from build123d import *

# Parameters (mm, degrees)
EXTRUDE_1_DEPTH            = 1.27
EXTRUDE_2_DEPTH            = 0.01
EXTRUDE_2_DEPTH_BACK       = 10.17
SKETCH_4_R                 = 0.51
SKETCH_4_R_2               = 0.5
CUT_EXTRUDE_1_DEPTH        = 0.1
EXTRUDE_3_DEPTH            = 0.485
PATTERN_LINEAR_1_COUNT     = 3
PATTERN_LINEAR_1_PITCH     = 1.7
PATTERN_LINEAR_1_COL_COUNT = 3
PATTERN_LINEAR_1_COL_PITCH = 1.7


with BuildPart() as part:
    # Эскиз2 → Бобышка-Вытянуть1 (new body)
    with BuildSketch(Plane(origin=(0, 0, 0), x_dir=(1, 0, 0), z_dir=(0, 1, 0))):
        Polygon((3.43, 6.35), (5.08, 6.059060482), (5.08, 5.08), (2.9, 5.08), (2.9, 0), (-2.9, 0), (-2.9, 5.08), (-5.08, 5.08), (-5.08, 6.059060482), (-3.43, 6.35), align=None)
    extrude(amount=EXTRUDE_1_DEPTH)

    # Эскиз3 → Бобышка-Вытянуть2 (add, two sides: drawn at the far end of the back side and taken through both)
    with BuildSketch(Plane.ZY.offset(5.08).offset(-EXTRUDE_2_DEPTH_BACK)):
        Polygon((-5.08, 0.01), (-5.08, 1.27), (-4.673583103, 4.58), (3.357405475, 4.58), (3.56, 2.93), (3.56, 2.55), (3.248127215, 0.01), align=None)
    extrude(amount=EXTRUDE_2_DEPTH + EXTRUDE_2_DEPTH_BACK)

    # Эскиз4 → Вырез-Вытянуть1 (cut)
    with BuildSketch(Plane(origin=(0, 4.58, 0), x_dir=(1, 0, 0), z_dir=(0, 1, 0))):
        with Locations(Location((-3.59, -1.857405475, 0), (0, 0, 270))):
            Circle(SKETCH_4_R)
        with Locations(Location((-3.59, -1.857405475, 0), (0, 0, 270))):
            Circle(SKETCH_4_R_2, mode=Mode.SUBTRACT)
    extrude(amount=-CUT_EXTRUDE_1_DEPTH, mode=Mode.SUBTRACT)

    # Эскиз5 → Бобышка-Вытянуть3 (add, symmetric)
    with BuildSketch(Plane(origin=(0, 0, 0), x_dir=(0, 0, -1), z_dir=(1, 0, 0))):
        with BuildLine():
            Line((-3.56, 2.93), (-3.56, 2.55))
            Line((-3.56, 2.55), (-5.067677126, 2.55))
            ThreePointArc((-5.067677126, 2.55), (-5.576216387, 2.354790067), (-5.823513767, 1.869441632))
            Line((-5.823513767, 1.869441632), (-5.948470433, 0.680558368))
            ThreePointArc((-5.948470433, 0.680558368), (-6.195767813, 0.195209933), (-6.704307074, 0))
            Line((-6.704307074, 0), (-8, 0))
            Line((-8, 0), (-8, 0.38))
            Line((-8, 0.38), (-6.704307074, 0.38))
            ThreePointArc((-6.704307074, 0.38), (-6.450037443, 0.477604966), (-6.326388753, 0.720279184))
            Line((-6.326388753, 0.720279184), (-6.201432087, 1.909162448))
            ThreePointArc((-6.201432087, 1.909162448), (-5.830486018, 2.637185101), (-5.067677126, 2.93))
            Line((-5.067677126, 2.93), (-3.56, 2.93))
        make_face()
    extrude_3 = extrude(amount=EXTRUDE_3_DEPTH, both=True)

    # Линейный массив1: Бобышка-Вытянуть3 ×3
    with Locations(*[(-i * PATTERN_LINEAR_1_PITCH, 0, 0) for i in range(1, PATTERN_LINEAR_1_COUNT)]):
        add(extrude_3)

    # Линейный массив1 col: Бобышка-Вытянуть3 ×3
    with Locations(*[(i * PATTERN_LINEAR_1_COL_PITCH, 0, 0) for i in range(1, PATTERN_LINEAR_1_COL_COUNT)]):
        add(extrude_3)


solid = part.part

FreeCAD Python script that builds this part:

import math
import FreeCAD as App
import Part
import Sketcher
from FreeCAD import Vector
Q = App.Units.Quantity

doc = App.newDocument("Part")
body = doc.addObject("PartDesign::Body", "Body")

# Sketch on XZ plane
sketch1 = body.newObject("Sketcher::SketchObject", "Sketch")
sketch1.AttachmentSupport = (doc.getObject("XZ_Plane"), [""])
sketch1.MapMode = "FlatFace"
sketch1.addGeometry([
    Part.LineSegment(Vector(5.1, -6.1, 0), Vector(3.4, -6.3, 0)),  # 0
    Part.LineSegment(Vector(3.4, -6.3, 0), Vector(-3.4, -6.3, 0)),  # 1
    Part.LineSegment(Vector(-3.4, -6.3, 0), Vector(-5.1, -6.1, 0)),  # 2
    Part.LineSegment(Vector(-5.1, -6.1, 0), Vector(-5.1, -5.1, 0)),  # 3
    Part.LineSegment(Vector(-5.1, -5.1, 0), Vector(-2.9, -5.1, 0)),  # 4
    Part.LineSegment(Vector(-2.9, -5.1, 0), Vector(-2.9, 0, 0)),  # 5
    Part.LineSegment(Vector(-2.9, 0, 0), Vector(2.9, 0, 0)),  # 6
    Part.LineSegment(Vector(2.9, 0, 0), Vector(2.9, -5.1, 0)),  # 7
    Part.LineSegment(Vector(2.9, -5.1, 0), Vector(5.1, -5.1, 0)),  # 8
    Part.LineSegment(Vector(5.1, -5.1, 0), Vector(5.1, -6.1, 0)),  # 9
], False)
sketch1.addConstraint([
    Sketcher.Constraint("Coincident", 0, 2, 1, 1),
    Sketcher.Constraint("Coincident", 1, 2, 2, 1),
    Sketcher.Constraint("Coincident", 2, 2, 3, 1),
    Sketcher.Constraint("Coincident", 3, 2, 4, 1),
    Sketcher.Constraint("Coincident", 4, 2, 5, 1),
    Sketcher.Constraint("Coincident", 5, 2, 6, 1),
    Sketcher.Constraint("Coincident", 6, 2, 7, 1),
    Sketcher.Constraint("Coincident", 7, 2, 8, 1),
    Sketcher.Constraint("Coincident", 8, 2, 9, 1),
    Sketcher.Constraint("Coincident", 9, 2, 0, 1),
    Sketcher.Constraint("Horizontal", 1),
    Sketcher.Constraint("Vertical", 3),
    Sketcher.Constraint("Horizontal", 4),
    Sketcher.Constraint("Vertical", 5),
    Sketcher.Constraint("Horizontal", 6),
    Sketcher.Constraint("Vertical", 7),
    Sketcher.Constraint("Horizontal", 8),
    Sketcher.Constraint("Vertical", 9),
    Sketcher.Constraint("Symmetric", 5, 2, 6, 2, -1, 1),
    Sketcher.Constraint("Symmetric", 3, 2, 8, 2, -2),
    Sketcher.Constraint("Horizontal", 2, 2, 9, 2),
    Sketcher.Constraint("Equal", 0, 2),
    Sketcher.Constraint("Angle", 0, Q("-170 deg")),
    Sketcher.Constraint("DistanceX", 6, 1, 6, 2, Q("5.8 mm")),
    Sketcher.Constraint("DistanceX", 1, 2, 1, 1, Q("6.86 mm")),
    Sketcher.Constraint("DistanceX", 4, 1, 4, 2, Q("2.18 mm")),
    Sketcher.Constraint("DistanceY", 5, 1, 5, 2, Q("5.08 mm")),
    Sketcher.Constraint("DistanceY", 0, 2, -1, 1, Q("6.35 mm")),
])
pad1 = body.newObject("PartDesign::Pad", "Pad")
pad1.Profile = sketch1
pad1.Length = 1.27
pad1.Reversed = True

# Sketch on YZ plane
sketch2 = body.newObject("Sketcher::SketchObject", "Sketch001")
sketch2.AttachmentSupport = (doc.getObject("YZ_Plane"), [""])
sketch2.MapMode = "FlatFace"
sketch2.AttachmentOffset = App.Placement(Vector(0, 0, -5.08), App.Rotation())
sketch2.addGeometry([
    Part.LineSegment(Vector(1.27, -5.08, 0), Vector(0.01, -5.08, 0)),  # 0
    Part.LineSegment(Vector(0.01, -5.08, 0), Vector(0.01, 3.25, 0)),  # 1
    Part.LineSegment(Vector(0.01, 3.25, 0), Vector(2.55, 3.56, 0)),  # 2
    Part.LineSegment(Vector(2.55, 3.56, 0), Vector(2.93, 3.56, 0)),  # 3
    Part.LineSegment(Vector(2.93, 3.56, 0), Vector(4.58, 3.36, 0)),  # 4
    Part.LineSegment(Vector(4.58, 3.36, 0), Vector(4.58, -4.67, 0)),  # 5
    Part.LineSegment(Vector(4.58, -4.67, 0), Vector(1.27, -5.08, 0)),  # 6
], False)
sketch2.addConstraint([
    Sketcher.Constraint("Coincident", 0, 2, 1, 1),
    Sketcher.Constraint("Coincident", 1, 2, 2, 1),
    Sketcher.Constraint("Coincident", 2, 2, 3, 1),
    Sketcher.Constraint("Coincident", 3, 2, 4, 1),
    Sketcher.Constraint("Coincident", 4, 2, 5, 1),
    Sketcher.Constraint("Coincident", 5, 2, 6, 1),
    Sketcher.Constraint("Coincident", 6, 2, 0, 1),
    Sketcher.Constraint("Horizontal", 0),
    Sketcher.Constraint("Vertical", 1),
    Sketcher.Constraint("Horizontal", 3),
    Sketcher.Constraint("Vertical", 5),
    Sketcher.Constraint("Parallel", 2, 6),
    Sketcher.Constraint("Angle", 2, Q("7 deg")),
    Sketcher.Constraint("Angle", 4, Q("-7 deg")),
    Sketcher.Constraint("DistanceX", 0, 2, 0, 1, Q("1.26 mm")),
    Sketcher.Constraint("DistanceX", 3, 1, 3, 2, Q("0.38 mm")),
    Sketcher.Constraint("DistanceX", -1, 1, 0, 2, Q("0.01 mm")),
    Sketcher.Constraint("DistanceY", 0, 2, -1, 1, Q("5.08 mm")),
    Sketcher.Constraint("DistanceX", -1, 1, 2, 2, Q("2.55 mm")),
    Sketcher.Constraint("DistanceY", -1, 1, 2, 2, Q("3.56 mm")),
    Sketcher.Constraint("DistanceX", -1, 1, 4, 2, Q("4.58 mm")),
])
pad2 = body.newObject("PartDesign::Pad", "Pad001")
pad2.Profile = sketch2
pad2.Type = "TwoLengths"
pad2.Length = 0.01
pad2.Length2 = 10.17
pad2.Reversed = True

# Sketch on XZ plane
sketch3 = body.newObject("Sketcher::SketchObject", "Sketch002")
sketch3.AttachmentSupport = (doc.getObject("XZ_Plane"), [""])
sketch3.MapMode = "FlatFace"
sketch3.AttachmentOffset = App.Placement(Vector(0, 0, -4.58), App.Rotation())
sketch3.addGeometry([
    Part.Circle(Vector(-3.6, 1.9, 0), Vector(0, 0, 1), 0.5),
    Part.Circle(Vector(-3.6, 1.9, 0), Vector(0, 0, 1), 0.5),
], False)
sketch3.addConstraint([
    Sketcher.Constraint("Coincident", 1, 3, 0, 3),
    Sketcher.Constraint("Diameter", 1, Q("1 mm")),
    Sketcher.Constraint("Diameter", 0, Q("1.02 mm")),
    Sketcher.Constraint("DistanceX", 0, 3, -1, 1, Q("3.59 mm")),
    Sketcher.Constraint("DistanceY", -1, 1, 0, 3, Q("1.857405 mm")),
])
pocket1 = body.newObject("PartDesign::Pocket", "Pocket")
pocket1.Profile = sketch3
pocket1.Length = 0.1
pocket1.Reversed = True

# Sketch on YZ plane
sketch4 = body.newObject("Sketcher::SketchObject", "Sketch003")
sketch4.AttachmentSupport = (doc.getObject("YZ_Plane"), [""])
sketch4.MapMode = "FlatFace"
sketch4.addGeometry([
    Part.LineSegment(Vector(2.55, 3.56, 0), Vector(2.93, 3.56, 0)),  # 0
    Part.LineSegment(Vector(2.93, 3.56, 0), Vector(2.93, 5.07, 0)),  # 1
    Part.ArcOfCircle(Part.Circle(Vector(1.79, 5.07, 0), Vector(0, 0, 1), 1.14), math.radians(0), math.radians(84)),  # 2
    Part.LineSegment(Vector(1.91, 6.2, 0), Vector(0.72, 6.33, 0)),  # 3
    Part.ArcOfCircle(Part.Circle(Vector(0.76, 6.7, 0), Vector(0, 0, 1), 0.38), math.radians(180), math.radians(264)),  # 4
    Part.LineSegment(Vector(0.38, 6.7, 0), Vector(0.38, 8, 0)),  # 5
    Part.LineSegment(Vector(0.38, 8, 0), Vector(0, 8, 0)),  # 6
    Part.LineSegment(Vector(0, 8, 0), Vector(0, 6.7, 0)),  # 7
    Part.ArcOfCircle(Part.Circle(Vector(0.76, 6.7, 0), Vector(0, 0, 1), 0.76), math.radians(-180), math.radians(-96)),  # 8
    Part.LineSegment(Vector(0.68, 5.95, 0), Vector(1.87, 5.82, 0)),  # 9
    Part.ArcOfCircle(Part.Circle(Vector(1.79, 5.07, 0), Vector(0, 0, 1), 0.76), math.radians(0), math.radians(84)),  # 10
    Part.LineSegment(Vector(2.55, 5.07, 0), Vector(2.55, 3.56, 0)),  # 11
], False)
sketch4.addConstraint([
    Sketcher.Constraint("Coincident", 0, 2, 1, 1),
    Sketcher.Constraint("Tangent", 1, 2, 2, 1),
    Sketcher.Constraint("Tangent", 2, 2, 3, 1),
    Sketcher.Constraint("Tangent", 3, 2, 4, 2),
    Sketcher.Constraint("Tangent", 4, 1, 5, 1),
    Sketcher.Constraint("Coincident", 5, 2, 6, 1),
    Sketcher.Constraint("Coincident", 6, 2, 7, 1),
    Sketcher.Constraint("Tangent", 7, 2, 8, 1),
    Sketcher.Constraint("Tangent", 8, 2, 9, 1),
    Sketcher.Constraint("Tangent", 9, 2, 10, 2),
    Sketcher.Constraint("Tangent", 10, 1, 11, 1),
    Sketcher.Constraint("Coincident", 11, 2, 0, 1),
    Sketcher.Constraint("Horizontal", 0),
    Sketcher.Constraint("Vertical", 1),
    Sketcher.Constraint("Vertical", 5),
    Sketcher.Constraint("Horizontal", 6),
    Sketcher.Constraint("Vertical", 7),
    Sketcher.Constraint("Vertical", 11),
    Sketcher.Constraint("Coincident", 8, 3, 4, 3),
    Sketcher.Constraint("Coincident", 10, 3, 2, 3),
    Sketcher.Constraint("Equal", 8, 10),
    Sketcher.Constraint("PointOnObject", 6, 2, -2),
    Sketcher.Constraint("Parallel", 3, 9),
    Sketcher.Constraint("Angle", 3, Q("174 deg")),
    Sketcher.Constraint("Radius", 2, Q("1.14 mm")),
    Sketcher.Constraint("Radius", 4, Q("0.38 mm")),
    Sketcher.Constraint("DistanceY", -1, 1, 5, 2, Q("8 mm")),
    Sketcher.Constraint("DistanceX", -1, 1, 2, 3, Q("1.79 mm")),
    Sketcher.Constraint("DistanceY", -1, 1, 0, 2, Q("3.56 mm")),
    Sketcher.Constraint("DistanceY", 1, 1, 1, 2, Q("1.507677 mm")),
])
pad3 = body.newObject("PartDesign::Pad", "Pad002")
pad3.Profile = sketch4
pad3.Length = 0.97
pad3.Midplane = True
doc.recompute()

linearpattern = body.newObject("PartDesign::LinearPattern", "LinearPattern")
linearpattern.Originals = [pad3]
linearpattern.Direction = (doc.getObject("X_Axis"), [""])
linearpattern.Mode = "offset"
linearpattern.Offset = 1.7
linearpattern.Occurrences = 3
linearpattern.Reversed = True
body.Tip = linearpattern
doc.recompute()

linearpattern2 = body.newObject("PartDesign::LinearPattern", "LinearPattern001")
linearpattern2.Originals = [pad3]
linearpattern2.Direction = (doc.getObject("X_Axis"), [""])
linearpattern2.Mode = "offset"
linearpattern2.Offset = 1.7
linearpattern2.Occurrences = 3
body.Tip = linearpattern2

doc.recompute()
